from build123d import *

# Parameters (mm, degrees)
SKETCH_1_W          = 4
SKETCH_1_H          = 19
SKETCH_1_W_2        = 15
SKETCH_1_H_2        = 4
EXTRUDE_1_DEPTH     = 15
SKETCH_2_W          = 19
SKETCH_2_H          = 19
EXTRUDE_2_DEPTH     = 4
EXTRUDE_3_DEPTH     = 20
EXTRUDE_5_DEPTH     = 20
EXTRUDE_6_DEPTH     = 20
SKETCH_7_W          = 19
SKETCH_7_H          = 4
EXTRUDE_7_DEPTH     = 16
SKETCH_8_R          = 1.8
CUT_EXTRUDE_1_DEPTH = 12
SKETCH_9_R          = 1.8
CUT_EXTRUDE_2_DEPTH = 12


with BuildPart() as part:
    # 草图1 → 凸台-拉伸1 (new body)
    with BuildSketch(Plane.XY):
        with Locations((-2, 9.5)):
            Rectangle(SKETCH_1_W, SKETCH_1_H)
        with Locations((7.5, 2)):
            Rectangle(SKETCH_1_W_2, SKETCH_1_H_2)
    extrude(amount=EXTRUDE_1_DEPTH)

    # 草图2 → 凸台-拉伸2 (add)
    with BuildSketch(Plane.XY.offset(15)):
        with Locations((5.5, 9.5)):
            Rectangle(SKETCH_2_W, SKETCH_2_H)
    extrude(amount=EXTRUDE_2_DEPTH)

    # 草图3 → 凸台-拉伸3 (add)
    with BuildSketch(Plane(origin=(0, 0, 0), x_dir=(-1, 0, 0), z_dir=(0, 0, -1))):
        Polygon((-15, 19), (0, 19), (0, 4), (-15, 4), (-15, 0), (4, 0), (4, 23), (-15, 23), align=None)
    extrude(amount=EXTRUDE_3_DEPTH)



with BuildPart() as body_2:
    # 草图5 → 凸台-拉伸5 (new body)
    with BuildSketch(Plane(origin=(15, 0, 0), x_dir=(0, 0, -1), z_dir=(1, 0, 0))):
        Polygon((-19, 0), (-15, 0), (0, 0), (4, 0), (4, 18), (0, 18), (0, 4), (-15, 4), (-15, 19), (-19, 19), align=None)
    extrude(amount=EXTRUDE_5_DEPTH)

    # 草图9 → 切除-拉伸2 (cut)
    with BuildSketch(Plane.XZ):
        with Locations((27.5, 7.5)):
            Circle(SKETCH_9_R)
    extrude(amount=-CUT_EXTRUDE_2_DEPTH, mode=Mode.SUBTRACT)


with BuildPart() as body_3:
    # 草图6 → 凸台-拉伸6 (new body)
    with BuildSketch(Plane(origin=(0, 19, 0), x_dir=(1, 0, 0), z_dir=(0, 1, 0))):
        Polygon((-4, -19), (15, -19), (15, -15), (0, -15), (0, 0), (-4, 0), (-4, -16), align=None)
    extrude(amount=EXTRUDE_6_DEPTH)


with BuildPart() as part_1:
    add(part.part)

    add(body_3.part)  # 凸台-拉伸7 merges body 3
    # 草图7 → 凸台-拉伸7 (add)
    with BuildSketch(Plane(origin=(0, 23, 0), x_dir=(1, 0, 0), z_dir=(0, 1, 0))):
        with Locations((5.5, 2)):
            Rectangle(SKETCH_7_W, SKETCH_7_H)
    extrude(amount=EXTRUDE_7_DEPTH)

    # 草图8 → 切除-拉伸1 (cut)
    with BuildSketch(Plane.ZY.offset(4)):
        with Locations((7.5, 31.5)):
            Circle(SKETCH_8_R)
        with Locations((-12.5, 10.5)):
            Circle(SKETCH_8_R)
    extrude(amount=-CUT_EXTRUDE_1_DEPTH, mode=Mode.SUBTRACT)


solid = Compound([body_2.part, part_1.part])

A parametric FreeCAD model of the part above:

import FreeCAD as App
import Part
import Sketcher

V = App.Vector


def add_polygon(sketch, points):
    """Adds a closed chain of lines whose ends are joined by coincident constraints."""
    first, n = sketch.GeometryCount, len(points)
    for a, b in zip(points, points[1:] + points[:1]):
        sketch.addGeometry(Part.LineSegment(App.Vector(*a, 0), App.Vector(*b, 0)), False)
    for i in range(n):
        sketch.addConstraint(Sketcher.Constraint("Coincident", first + i, 2, first + (i + 1) % n, 1))

doc = App.newDocument("Part")
body = doc.addObject("PartDesign::Body", "Body")

sketch1 = doc.addObject("Sketcher::SketchObject", "Sketch")
body.addObject(sketch1)
sketch1.AttachmentSupport = (doc.XY_Plane, [""])
sketch1.MapMode = "FlatFace"
add_polygon(sketch1, [(-4, 19), (-4, 0), (15, 0), (15, 4), (0, 4), (0, 19)])
sketch1.addConstraint(Sketcher.Constraint("Vertical", 0))
sketch1.addConstraint(Sketcher.Constraint("Horizontal", 1))
sketch1.addConstraint(Sketcher.Constraint("Vertical", 2))
sketch1.addConstraint(Sketcher.Constraint("Horizontal", 3))
sketch1.addConstraint(Sketcher.Constraint("Vertical", 4))
sketch1.addConstraint(Sketcher.Constraint("Horizontal", 5))
sketch1.addConstraint(Sketcher.Constraint("PointOnObject", 0, 2, -1))
sketch1.addConstraint(Sketcher.Constraint("PointOnObject", 3, 2, -2))
sketch1.addConstraint(Sketcher.Constraint("Equal", 1, 0))
sketch1.addConstraint(Sketcher.Constraint("Equal", 5, 2))
sketch1.addConstraint(Sketcher.Constraint("DistanceX", 1, 1, 1, 2, 19.0))
sketch1.addConstraint(Sketcher.Constraint("DistanceX", 3, 2, 3, 1, 15.0))
pad1 = doc.addObject("PartDesign::Pad", "Pad")
body.addObject(pad1)
pad1.Profile = sketch1
pad1.Length = 15

sketch2 = doc.addObject("Sketcher::SketchObject", "Sketch001")
body.addObject(sketch2)
sketch2.AttachmentSupport = (doc.XY_Plane, [""])
sketch2.MapMode = "FlatFace"
sketch2.AttachmentOffset = App.Placement(V(0, 0, 15), App.Rotation())
add_polygon(sketch2, [(-4, 19), (-4, 0), (15, 0), (15, 19)])
sketch2.addConstraint(Sketcher.Constraint("Vertical", 0))
sketch2.addConstraint(Sketcher.Constraint("Horizontal", 1))
sketch2.addConstraint(Sketcher.Constraint("Vertical", 2))
sketch2.addConstraint(Sketcher.Constraint("Horizontal", 3))
sketch2.addConstraint(Sketcher.Constraint("PointOnObject", 0, 2, -1))
sketch2.addConstraint(Sketcher.Constraint("Equal", 3, 0))
sketch2.addConstraint(Sketcher.Constraint("DistanceX", 1, 1, 1, 2, 19.0))
sketch2.addConstraint(Sketcher.Constraint("DistanceX", 0, 2, -1, 1, 4.0))
pad2 = doc.addObject("PartDesign::Pad", "Pad001")
body.addObject(pad2)
pad2.Profile = sketch2
pad2.Length = 4

sketch3 = doc.addObject("Sketcher::SketchObject", "Sketch002")
body.addObject(sketch3)
sketch3.AttachmentSupport = (doc.XY_Plane, [""])
sketch3.MapMode = "FlatFace"
add_polygon(sketch3, [(15, 19), (0, 19), (0, 4), (15, 4), (15, 0), (-4, 0), (-4, 23), (15, 23)])
sketch3.addConstraint(Sketcher.Constraint("Horizontal", 0))
sketch3.addConstraint(Sketcher.Constraint("Vertical", 1))
sketch3.addConstraint(Sketcher.Constraint("Horizontal", 2))
sketch3.addConstraint(Sketcher.Constraint("Vertical", 3))
sketch3.addConstraint(Sketcher.Constraint("Horizontal", 4))
sketch3.addConstraint(Sketcher.Constraint("Vertical", 5))
sketch3.addConstraint(Sketcher.Constraint("Horizontal", 6))
sketch3.addConstraint(Sketcher.Constraint("Vertical", 7))
sketch3.addConstraint(Sketcher.Constraint("PointOnObject", 0, 2, -2))
sketch3.addConstraint(Sketcher.Constraint("PointOnObject", 3, 2, -1))
sketch3.addConstraint(Sketcher.Constraint("Vertical", 3, 2, 6, 2))
sketch3.addConstraint(Sketcher.Constraint("Equal", 2, 1))
sketch3.addConstraint(Sketcher.Constraint("Equal", 3, 7))
sketch3.addConstraint(Sketcher.Constraint("DistanceX", 0, 2, 0, 1, 15.0))
sketch3.addConstraint(Sketcher.Constraint("DistanceX", 4, 2, 4, 1, 19.0))
sketch3.addConstraint(Sketcher.Constraint("DistanceY", 3, 2, 3, 1, 4.0))
pad3 = doc.addObject("PartDesign::Pad", "Pad002")
body.addObject(pad3)
pad3.Profile = sketch3
pad3.Length = 20
pad3.Reversed = True
body2 = doc.addObject("PartDesign::Body", "Body001")

sketch4 = doc.addObject("Sketcher::SketchObject", "Sketch003")
body2.addObject(sketch4)
sketch4.AttachmentSupport = (doc.getObject("YZ_Plane001"), [""])
sketch4.MapMode = "FlatFace"
sketch4.AttachmentOffset = App.Placement(V(0, 0, 15), App.Rotation())
add_polygon(sketch4, [(0, 19), (0, -4), (18, -4), (18, 0), (4, 0), (4, 15), (19, 15), (19, 19)])
sketch4.addConstraint(Sketcher.Constraint("Vertical", 0))
sketch4.addConstraint(Sketcher.Constraint("Horizontal", 1))
sketch4.addConstraint(Sketcher.Constraint("Vertical", 2))
sketch4.addConstraint(Sketcher.Constraint("Horizontal", 3))
sketch4.addConstraint(Sketcher.Constraint("Vertical", 4))
sketch4.addConstraint(Sketcher.Constraint("Horizontal", 5))
sketch4.addConstraint(Sketcher.Constraint("Vertical", 6))
sketch4.addConstraint(Sketcher.Constraint("Horizontal", 7))
sketch4.addConstraint(Sketcher.Constraint("PointOnObject", 0, 2, -2))
sketch4.addConstraint(Sketcher.Constraint("PointOnObject", 2, 2, -1))
sketch4.addConstraint(Sketcher.Constraint("Equal", 5, 4))
sketch4.addConstraint(Sketcher.Constraint("Equal", 2, 6))
sketch4.addConstraint(Sketcher.Constraint("DistanceX", 1, 1, 1, 2, 18.0))
sketch4.addConstraint(Sketcher.Constraint("DistanceX", 3, 2, 3, 1, 14.0))
sketch4.addConstraint(Sketcher.Constraint("DistanceX", 5, 1, 5, 2, 15.0))
sketch4.addConstraint(Sketcher.Constraint("DistanceY", 0, 2, 0, 1, 23.0))
pad4 = doc.addObject("PartDesign::Pad", "Pad003")
body2.addObject(pad4)
pad4.Profile = sketch4
pad4.Length = 20

sketch5 = doc.addObject("Sketcher::SketchObject", "Sketch004")
body2.addObject(sketch5)
sketch5.AttachmentSupport = (doc.getObject("XZ_Plane001"), [""])
sketch5.MapMode = "FlatFace"
sketch5.addGeometry(Part.Circle(V(27.5, 7.5, 0), V(0, 0, 1), 1.8), False)
sketch5.addConstraint(Sketcher.Constraint("Diameter", 0, 3.6))
sketch5.addConstraint(Sketcher.Constraint("DistanceX", -1, 1, 0, 3, 27.5))
sketch5.addConstraint(Sketcher.Constraint("DistanceY", -1, 1, 0, 3, 7.5))
pocket1 = doc.addObject("PartDesign::Pocket", "Pocket")
body2.addObject(pocket1)
pocket1.Profile = sketch5
pocket1.Length = 12
body3 = doc.addObject("PartDesign::Body", "Body002")

sketch6 = doc.addObject("Sketcher::SketchObject", "Sketch005")
body3.addObject(sketch6)
sketch6.AttachmentSupport = (doc.getObject("XZ_Plane002"), [""])
sketch6.MapMode = "FlatFace"
sketch6.AttachmentOffset = App.Placement(V(0, 0, -19), App.Rotation())
add_polygon(sketch6, [(-4, 19), (15, 19), (15, 15), (0, 15), (0, 0), (-4, 0)])
sketch6.addConstraint(Sketcher.Constraint("Horizontal", 0))
sketch6.addConstraint(Sketcher.Constraint("Vertical", 1))
sketch6.addConstraint(Sketcher.Constraint("Horizontal", 2))
sketch6.addConstraint(Sketcher.Constraint("Vertical", 3))
sketch6.addConstraint(Sketcher.Constraint("Horizontal", 4))
sketch6.addConstraint(Sketcher.Constraint("Vertical", 5))
sketch6.addConstraint(Sketcher.Constraint("Coincident", 3, 2, -1, 1))
sketch6.addConstraint(Sketcher.Constraint("Equal", 4, 1))
sketch6.addConstraint(Sketcher.Constraint("Equal", 2, 3))
sketch6.addConstraint(Sketcher.Constraint("DistanceX", 0, 1, 0, 2, 19.0))
sketch6.addConstraint(Sketcher.Constraint("DistanceX", 2, 2, 2, 1, 15.0))
pad5 = doc.addObject("PartDesign::Pad", "Pad004")
body3.addObject(pad5)
pad5.Profile = sketch6
pad5.Length = 20
pad5.Reversed = True
doc.recompute()

boolean = doc.addObject("PartDesign::Boolean", "Boolean")
body.addObject(boolean)
boolean.Type = "Fuse"
boolean.addObjects([body3])

sketch7 = doc.addObject("Sketcher::SketchObject", "Sketch006")
body.addObject(sketch7)
sketch7.AttachmentSupport = (doc.XZ_Plane, [""])
sketch7.MapMode = "FlatFace"
sketch7.AttachmentOffset = App.Placement(V(0, 0, -23), App.Rotation())
add_polygon(sketch7, [(-4, -4), (-4, 0), (15, 0), (15, -4)])
sketch7.addConstraint(Sketcher.Constraint("Vertical", 0))
sketch7.addConstraint(Sketcher.Constraint("Horizontal", 1))
sketch7.addConstraint(Sketcher.Constraint("Vertical", 2))
sketch7.addConstraint(Sketcher.Constraint("Horizontal", 3))
sketch7.addConstraint(Sketcher.Constraint("PointOnObject", 0, 2, -1))
sketch7.addConstraint(Sketcher.Constraint("DistanceX", 1, 1, 1, 2, 19.0))
sketch7.addConstraint(Sketcher.Constraint("DistanceY", 0, 1, 0, 2, 4.0))
sketch7.addConstraint(Sketcher.Constraint("DistanceX", 0, 2, -1, 1, 4.0))
pad6 = doc.addObject("PartDesign::Pad", "Pad005")
body.addObject(pad6)
pad6.Profile = sketch7
pad6.Length = 16
pad6.Reversed = True

sketch8 = doc.addObject("Sketcher::SketchObject", "Sketch007")
body.addObject(sketch8)
sketch8.AttachmentSupport = (doc.YZ_Plane, [""])
sketch8.MapMode = "FlatFace"
sketch8.AttachmentOffset = App.Placement(V(0, 0, -4), App.Rotation())
sketch8.addGeometry(Part.Circle(V(31.5, 7.5, 0), V(0, 0, 1), 1.8), False)
sketch8.addGeometry(Part.Circle(V(10.5, -12.5, 0), V(0, 0, 1), 1.8), False)
sketch8.addConstraint(Sketcher.Constraint("Equal", 0, 1))
sketch8.addConstraint(Sketcher.Constraint("Diameter", 0, 3.6))
sketch8.addConstraint(Sketcher.Constraint("DistanceX", 1, 3, 0, 3, 21.0))
sketch8.addConstraint(Sketcher.Constraint("DistanceY", 1, 3, 0, 3, 20.0))
sketch8.addConstraint(Sketcher.Constraint("DistanceX", -1, 1, 0, 3, 31.5))
sketch8.addConstraint(Sketcher.Constraint("DistanceY", -1, 1, 0, 3, 7.5))
pocket2 = doc.addObject("PartDesign::Pocket", "Pocket001")
body.addObject(pocket2)
pocket2.Profile = sketch8
pocket2.Length = 12
pocket2.Reversed = True

doc.recompute()
